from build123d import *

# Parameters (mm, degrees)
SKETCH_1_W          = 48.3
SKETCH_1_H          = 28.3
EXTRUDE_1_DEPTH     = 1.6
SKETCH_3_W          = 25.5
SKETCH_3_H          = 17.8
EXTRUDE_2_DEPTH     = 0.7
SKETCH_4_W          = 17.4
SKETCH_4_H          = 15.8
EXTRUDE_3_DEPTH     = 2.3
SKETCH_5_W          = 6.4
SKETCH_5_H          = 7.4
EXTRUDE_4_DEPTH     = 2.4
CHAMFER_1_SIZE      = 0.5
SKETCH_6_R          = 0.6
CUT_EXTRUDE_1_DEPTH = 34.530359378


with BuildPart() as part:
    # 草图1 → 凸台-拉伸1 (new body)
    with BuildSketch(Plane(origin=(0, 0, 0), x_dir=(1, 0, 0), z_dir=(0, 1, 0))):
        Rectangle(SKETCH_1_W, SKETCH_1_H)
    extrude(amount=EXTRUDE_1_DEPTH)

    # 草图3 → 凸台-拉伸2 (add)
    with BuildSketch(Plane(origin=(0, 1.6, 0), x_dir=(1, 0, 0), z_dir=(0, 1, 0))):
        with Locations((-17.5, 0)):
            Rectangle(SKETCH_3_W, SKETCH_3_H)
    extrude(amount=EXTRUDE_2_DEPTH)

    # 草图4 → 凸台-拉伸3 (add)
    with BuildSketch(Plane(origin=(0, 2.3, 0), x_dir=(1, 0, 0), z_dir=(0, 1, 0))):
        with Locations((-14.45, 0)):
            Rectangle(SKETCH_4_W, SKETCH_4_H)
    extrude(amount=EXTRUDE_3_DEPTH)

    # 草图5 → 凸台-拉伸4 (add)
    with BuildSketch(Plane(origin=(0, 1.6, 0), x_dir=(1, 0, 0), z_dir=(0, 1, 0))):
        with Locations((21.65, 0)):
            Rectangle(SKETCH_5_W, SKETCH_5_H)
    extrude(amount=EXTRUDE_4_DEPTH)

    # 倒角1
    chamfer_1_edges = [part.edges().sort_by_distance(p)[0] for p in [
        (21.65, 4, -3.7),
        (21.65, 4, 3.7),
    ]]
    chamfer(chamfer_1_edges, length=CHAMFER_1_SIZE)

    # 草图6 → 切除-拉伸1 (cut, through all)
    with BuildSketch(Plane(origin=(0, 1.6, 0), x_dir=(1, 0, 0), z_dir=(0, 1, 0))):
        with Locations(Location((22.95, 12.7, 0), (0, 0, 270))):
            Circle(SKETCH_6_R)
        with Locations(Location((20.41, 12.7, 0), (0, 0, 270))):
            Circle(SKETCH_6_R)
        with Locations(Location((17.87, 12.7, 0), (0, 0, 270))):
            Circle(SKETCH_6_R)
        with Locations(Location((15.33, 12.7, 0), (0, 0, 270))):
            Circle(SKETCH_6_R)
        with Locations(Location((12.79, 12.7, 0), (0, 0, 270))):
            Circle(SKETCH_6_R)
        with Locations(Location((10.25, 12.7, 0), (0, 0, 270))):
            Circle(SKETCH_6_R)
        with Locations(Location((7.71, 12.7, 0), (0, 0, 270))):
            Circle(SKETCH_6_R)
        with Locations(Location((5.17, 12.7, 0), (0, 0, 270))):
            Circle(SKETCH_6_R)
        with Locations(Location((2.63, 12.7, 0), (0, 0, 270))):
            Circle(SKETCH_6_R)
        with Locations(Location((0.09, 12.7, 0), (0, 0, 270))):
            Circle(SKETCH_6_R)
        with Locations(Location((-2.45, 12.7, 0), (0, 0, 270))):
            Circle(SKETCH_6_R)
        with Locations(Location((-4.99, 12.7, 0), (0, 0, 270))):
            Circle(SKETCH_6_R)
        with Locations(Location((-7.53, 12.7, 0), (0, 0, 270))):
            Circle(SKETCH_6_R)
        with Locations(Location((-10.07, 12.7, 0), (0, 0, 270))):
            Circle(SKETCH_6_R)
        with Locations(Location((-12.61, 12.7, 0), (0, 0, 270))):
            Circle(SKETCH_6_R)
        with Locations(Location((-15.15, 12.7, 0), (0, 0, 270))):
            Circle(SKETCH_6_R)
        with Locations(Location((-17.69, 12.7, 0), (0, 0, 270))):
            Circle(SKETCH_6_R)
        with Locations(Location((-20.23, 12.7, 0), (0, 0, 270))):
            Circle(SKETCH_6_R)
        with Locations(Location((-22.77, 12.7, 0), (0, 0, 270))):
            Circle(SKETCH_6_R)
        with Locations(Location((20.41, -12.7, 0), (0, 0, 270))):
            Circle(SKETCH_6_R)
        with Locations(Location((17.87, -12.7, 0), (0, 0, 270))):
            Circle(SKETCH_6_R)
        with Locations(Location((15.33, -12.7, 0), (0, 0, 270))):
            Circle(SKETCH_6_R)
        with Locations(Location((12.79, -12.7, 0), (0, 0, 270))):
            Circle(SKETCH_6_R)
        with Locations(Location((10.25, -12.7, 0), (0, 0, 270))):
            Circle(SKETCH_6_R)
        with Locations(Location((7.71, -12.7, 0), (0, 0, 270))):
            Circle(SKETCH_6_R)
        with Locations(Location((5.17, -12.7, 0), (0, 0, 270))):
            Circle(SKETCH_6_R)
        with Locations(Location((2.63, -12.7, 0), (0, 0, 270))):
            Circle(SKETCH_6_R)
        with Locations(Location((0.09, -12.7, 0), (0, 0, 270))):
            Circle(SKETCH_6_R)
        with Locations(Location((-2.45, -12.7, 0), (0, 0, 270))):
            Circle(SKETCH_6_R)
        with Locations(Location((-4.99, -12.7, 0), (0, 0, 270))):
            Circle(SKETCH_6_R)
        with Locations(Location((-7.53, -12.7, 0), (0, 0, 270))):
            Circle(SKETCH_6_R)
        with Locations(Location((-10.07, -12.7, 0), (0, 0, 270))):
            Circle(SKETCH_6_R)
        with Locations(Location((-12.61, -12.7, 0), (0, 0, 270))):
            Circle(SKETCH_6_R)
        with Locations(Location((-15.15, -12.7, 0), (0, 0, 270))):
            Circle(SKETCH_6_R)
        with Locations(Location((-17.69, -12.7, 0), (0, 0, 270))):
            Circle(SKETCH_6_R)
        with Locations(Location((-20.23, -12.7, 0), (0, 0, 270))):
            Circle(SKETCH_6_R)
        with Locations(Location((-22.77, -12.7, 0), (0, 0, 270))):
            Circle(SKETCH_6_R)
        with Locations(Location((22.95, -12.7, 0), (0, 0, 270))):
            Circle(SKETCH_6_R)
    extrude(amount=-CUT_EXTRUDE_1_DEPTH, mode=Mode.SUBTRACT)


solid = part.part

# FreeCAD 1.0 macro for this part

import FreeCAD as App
import Part
import Sketcher

V = App.Vector


def edges_at(feature, points):
    """Names of the edges that pass closest to the given points."""
    edges = feature.Shape.Edges
    near = lambda p: min(range(len(edges)), key=lambda i: edges[i].distToShape(Part.Vertex(*p))[0])
    return sorted({f"Edge{near(p) + 1}" for p in points})

doc = App.newDocument("Part")
body = doc.addObject("PartDesign::Body", "Body")

# Sketch on XZ plane
sketch1 = doc.addObject("Sketcher::SketchObject", "Sketch")
body.addObject(sketch1)
sketch1.AttachmentSupport = (doc.XZ_Plane, [""])
sketch1.MapMode = "FlatFace"
sketch1.addGeometry(Part.LineSegment(V(-24, -14, 0), V(-24, 14, 0)), False)
sketch1.addGeometry(Part.LineSegment(V(-24, 14, 0), V(24, 14, 0)), False)
sketch1.addGeometry(Part.LineSegment(V(24, 14, 0), V(24, -14, 0)), False)
sketch1.addGeometry(Part.LineSegment(V(24, -14, 0), V(-24, -14, 0)), False)
sketch1.addConstraint(Sketcher.Constraint("Coincident", 0, 2, 1, 1))
sketch1.addConstraint(Sketcher.Constraint("Coincident", 1, 2, 2, 1))
sketch1.addConstraint(Sketcher.Constraint("Coincident", 2, 2, 3, 1))
sketch1.addConstraint(Sketcher.Constraint("Coincident", 3, 2, 0, 1))
sketch1.addConstraint(Sketcher.Constraint("Vertical", 0))
sketch1.addConstraint(Sketcher.Constraint("Horizontal", 1))
sketch1.addConstraint(Sketcher.Constraint("Vertical", 2))
sketch1.addConstraint(Sketcher.Constraint("Horizontal", 3))
sketch1.addConstraint(Sketcher.Constraint("Symmetric", 0, 2, 2, 2, -1, 1))
sketch1.addConstraint(Sketcher.Constraint("DistanceX", 1, 1, 1, 2, 48.3))
sketch1.addConstraint(Sketcher.Constraint("DistanceY", 0, 1, 0, 2, 28.3))
pad1 = doc.addObject("PartDesign::Pad", "Pad")
body.addObject(pad1)
pad1.Profile = sketch1
pad1.Length = 1.6
pad1.Reversed = True

# Sketch on XZ plane
sketch2 = doc.addObject("Sketcher::SketchObject", "Sketch001")
body.addObject(sketch2)
sketch2.AttachmentSupport = (doc.XZ_Plane, [""])
sketch2.MapMode = "FlatFace"
sketch2.AttachmentOffset = App.Placement(V(0, 0, -1.6), App.Rotation())
sketch2.addGeometry(Part.LineSegment(V(-30, -9, 0), V(-30, 9, 0)), False)
sketch2.addGeometry(Part.LineSegment(V(-30, 9, 0), V(-5, 9, 0)), False)
sketch2.addGeometry(Part.LineSegment(V(-5, 9, 0), V(-5, -9, 0)), False)
sketch2.addGeometry(Part.LineSegment(V(-5, -9, 0), V(-30, -9, 0)), False)
sketch2.addConstraint(Sketcher.Constraint("Coincident", 0, 2, 1, 1))
sketch2.addConstraint(Sketcher.Constraint("Coincident", 1, 2, 2, 1))
sketch2.addConstraint(Sketcher.Constraint("Coincident", 2, 2, 3, 1))
sketch2.addConstraint(Sketcher.Constraint("Coincident", 3, 2, 0, 1))
sketch2.addConstraint(Sketcher.Constraint("Vertical", 0))
sketch2.addConstraint(Sketcher.Constraint("Horizontal", 1))
sketch2.addConstraint(Sketcher.Constraint("Vertical", 2))
sketch2.addConstraint(Sketcher.Constraint("Horizontal", 3))
sketch2.addConstraint(Sketcher.Constraint("DistanceX", 1, 1, 1, 2, 25.5))
sketch2.addConstraint(Sketcher.Constraint("DistanceY", 0, 1, 0, 2, 17.8))
sketch2.addConstraint(Sketcher.Constraint("DistanceY", -1, 1, 0, 2, 8.9))
sketch2.addConstraint(Sketcher.Constraint("DistanceX", 0, 2, -1, 1, 30.25))
pad2 = doc.addObject("PartDesign::Pad", "Pad001")
body.addObject(pad2)
pad2.Profile = sketch2
pad2.Length = 0.7
pad2.Reversed = True

# Sketch on XZ plane
sketch3 = doc.addObject("Sketcher::SketchObject", "Sketch002")
body.addObject(sketch3)
sketch3.AttachmentSupport = (doc.XZ_Plane, [""])
sketch3.MapMode = "FlatFace"
sketch3.AttachmentOffset = App.Placement(V(0, 0, -2.3), App.Rotation())
sketch3.addGeometry(Part.LineSegment(V(-23, -8, 0), V(-23, 8, 0)), False)
sketch3.addGeometry(Part.LineSegment(V(-23, 8, 0), V(-6, 8, 0)), False)
sketch3.addGeometry(Part.LineSegment(V(-6, 8, 0), V(-6, -8, 0)), False)
sketch3.addGeometry(Part.LineSegment(V(-6, -8, 0), V(-23, -8, 0)), False)
sketch3.addConstraint(Sketcher.Constraint("Coincident", 0, 2, 1, 1))
sketch3.addConstraint(Sketcher.Constraint("Coincident", 1, 2, 2, 1))
sketch3.addConstraint(Sketcher.Constraint("Coincident", 2, 2, 3, 1))
sketch3.addConstraint(Sketcher.Constraint("Coincident", 3, 2, 0, 1))
sketch3.addConstraint(Sketcher.Constraint("Vertical", 0))
sketch3.addConstraint(Sketcher.Constraint("Horizontal", 1))
sketch3.addConstraint(Sketcher.Constraint("Vertical", 2))
sketch3.addConstraint(Sketcher.Constraint("Horizontal", 3))
sketch3.addConstraint(Sketcher.Constraint("DistanceX", 1, 1, 1, 2, 17.4))
sketch3.addConstraint(Sketcher.Constraint("DistanceY", 0, 1, 0, 2, 15.8))
sketch3.addConstraint(Sketcher.Constraint("DistanceY", -1, 1, 0, 2, 7.9))
sketch3.addConstraint(Sketcher.Constraint("DistanceX", 0, 2, -1, 1, 23.15))
pad3 = doc.addObject("PartDesign::Pad", "Pad002")
body.addObject(pad3)
pad3.Profile = sketch3
pad3.Length = 2.3
pad3.Reversed = True

# Sketch on XZ plane
sketch4 = doc.addObject("Sketcher::SketchObject", "Sketch003")
body.addObject(sketch4)
sketch4.AttachmentSupport = (doc.XZ_Plane, [""])
sketch4.MapMode = "FlatFace"
sketch4.AttachmentOffset = App.Placement(V(0, 0, -1.6), App.Rotation())
sketch4.addGeometry(Part.LineSegment(V(18, -4, 0), V(18, 4, 0)), False)
sketch4.addGeometry(Part.LineSegment(V(18, 4, 0), V(25, 4, 0)), False)
sketch4.addGeometry(Part.LineSegment(V(25, 4, 0), V(25, -4, 0)), False)
sketch4.addGeometry(Part.LineSegment(V(25, -4, 0), V(18, -4, 0)), False)
sketch4.addConstraint(Sketcher.Constraint("Coincident", 0, 2, 1, 1))
sketch4.addConstraint(Sketcher.Constraint("Coincident", 1, 2, 2, 1))
sketch4.addConstraint(Sketcher.Constraint("Coincident", 2, 2, 3, 1))
sketch4.addConstraint(Sketcher.Constraint("Coincident", 3, 2, 0, 1))
sketch4.addConstraint(Sketcher.Constraint("Vertical", 0))
sketch4.addConstraint(Sketcher.Constraint("Horizontal", 1))
sketch4.addConstraint(Sketcher.Constraint("Vertical", 2))
sketch4.addConstraint(Sketcher.Constraint("Horizontal", 3))
sketch4.addConstraint(Sketcher.Constraint("DistanceX", 1, 1, 1, 2, 6.4))
sketch4.addConstraint(Sketcher.Constraint("DistanceY", 0, 1, 0, 2, 7.4))
sketch4.addConstraint(Sketcher.Constraint("DistanceY", -1, 1, 0, 2, 3.7))
sketch4.addConstraint(Sketcher.Constraint("DistanceX", -1, 1, 0, 2, 18.45))
pad4 = doc.addObject("PartDesign::Pad", "Pad003")
body.addObject(pad4)
pad4.Profile = sketch4
pad4.Length = 2.4
pad4.Reversed = True
doc.recompute()

chamfer = doc.addObject("PartDesign::Chamfer", "Chamfer")
body.addObject(chamfer)
chamfer.Base = (pad4, edges_at(pad4, [(21.65, 4, -3.7), (21.65, 4, 3.7)]))
chamfer.Size = 0.5

# Sketch on XZ plane
sketch5 = doc.addObject("Sketcher::SketchObject", "Sketch004")
body.addObject(sketch5)
sketch5.AttachmentSupport = (doc.XZ_Plane, [""])
sketch5.MapMode = "FlatFace"
sketch5.AttachmentOffset = App.Placement(V(0, 0, -1.6), App.Rotation())
sketch5.addGeometry(Part.Circle(V(22.9, -12.7, 0), V(0, 0, 1), 0.6), False)
sketch5.addGeometry(Part.Circle(V(20.4, -12.7, 0), V(0, 0, 1), 0.6), False)
sketch5.addGeometry(Part.Circle(V(17.9, -12.7, 0), V(0, 0, 1), 0.6), False)
sketch5.addGeometry(Part.Circle(V(15.3, -12.7, 0), V(0, 0, 1), 0.6), False)
sketch5.addGeometry(Part.Circle(V(12.8, -12.7, 0), V(0, 0, 1), 0.6), False)
sketch5.addGeometry(Part.Circle(V(10.2, -12.7, 0), V(0, 0, 1), 0.6), False)
sketch5.addGeometry(Part.Circle(V(7.7, -12.7, 0), V(0, 0, 1), 0.6), False)
sketch5.addGeometry(Part.Circle(V(5.2, -12.7, 0), V(0, 0, 1), 0.6), False)
sketch5.addGeometry(Part.Circle(V(2.6, -12.7, 0), V(0, 0, 1), 0.6), False)
sketch5.addGeometry(Part.Circle(V(0.1, -12.7, 0), V(0, 0, 1), 0.6), False)
sketch5.addGeometry(Part.Circle(V(-2.5, -12.7, 0), V(0, 0, 1), 0.6), False)
sketch5.addGeometry(Part.Circle(V(-5, -12.7, 0), V(0, 0, 1), 0.6), False)
sketch5.addGeometry(Part.Circle(V(-7.5, -12.7, 0), V(0, 0, 1), 0.6), False)
sketch5.addGeometry(Part.Circle(V(-10.1, -12.7, 0), V(0, 0, 1), 0.6), False)
sketch5.addGeometry(Part.Circle(V(-12.6, -12.7, 0), V(0, 0, 1), 0.6), False)
sketch5.addGeometry(Part.Circle(V(-15.2, -12.7, 0), V(0, 0, 1), 0.6), False)
sketch5.addGeometry(Part.Circle(V(-17.7, -12.7, 0), V(0, 0, 1), 0.6), False)
sketch5.addGeometry(Part.Circle(V(-20.2, -12.7, 0), V(0, 0, 1), 0.6), False)
sketch5.addGeometry(Part.Circle(V(-22.8, -12.7, 0), V(0, 0, 1), 0.6), False)
sketch5.addGeometry(Part.Circle(V(20.4, 12.7, 0), V(0, 0, 1), 0.6), False)
sketch5.addGeometry(Part.Circle(V(17.9, 12.7, 0), V(0, 0, 1), 0.6), False)
sketch5.addGeometry(Part.Circle(V(15.3, 12.7, 0), V(0, 0, 1), 0.6), False)
sketch5.addGeometry(Part.Circle(V(12.8, 12.7, 0), V(0, 0, 1), 0.6), False)
sketch5.addGeometry(Part.Circle(V(10.2, 12.7, 0), V(0, 0, 1), 0.6), False)
sketch5.addGeometry(Part.Circle(V(7.7, 12.7, 0), V(0, 0, 1), 0.6), False)
sketch5.addGeometry(Part.Circle(V(5.2, 12.7, 0), V(0, 0, 1), 0.6), False)
sketch5.addGeometry(Part.Circle(V(2.6, 12.7, 0), V(0, 0, 1), 0.6), False)
sketch5.addGeometry(Part.Circle(V(0.1, 12.7, 0), V(0, 0, 1), 0.6), False)
sketch5.addGeometry(Part.Circle(V(-2.5, 12.7, 0), V(0, 0, 1), 0.6), False)
sketch5.addGeometry(Part.Circle(V(-5, 12.7, 0), V(0, 0, 1), 0.6), False)
sketch5.addGeometry(Part.Circle(V(-7.5, 12.7, 0), V(0, 0, 1), 0.6), False)
sketch5.addGeometry(Part.Circle(V(-10.1, 12.7, 0), V(0, 0, 1), 0.6), False)
sketch5.addGeometry(Part.Circle(V(-12.6, 12.7, 0), V(0, 0, 1), 0.6), False)
sketch5.addGeometry(Part.Circle(V(-15.2, 12.7, 0), V(0, 0, 1), 0.6), False)
sketch5.addGeometry(Part.Circle(V(-17.7, 12.7, 0), V(0, 0, 1), 0.6), False)
sketch5.addGeometry(Part.Circle(V(-20.2, 12.7, 0), V(0, 0, 1), 0.6), False)
sketch5.addGeometry(Part.Circle(V(-22.8, 12.7, 0), V(0, 0, 1), 0.6), False)
sketch5.addGeometry(Part.Circle(V(22.9, 12.7, 0), V(0, 0, 1), 0.6), False)
sketch5.addConstraint(Sketcher.Constraint("Equal", 0, 1))
sketch5.addConstraint(Sketcher.Constraint("Equal", 1, 2))
sketch5.addConstraint(Sketcher.Constraint("Equal", 2, 3))
sketch5.addConstraint(Sketcher.Constraint("Equal", 3, 4))
sketch5.addConstraint(Sketcher.Constraint("Equal", 4, 5))
sketch5.addConstraint(Sketcher.Constraint("Equal", 5, 6))
sketch5.addConstraint(Sketcher.Constraint("Equal", 6, 7))
sketch5.addConstraint(Sketcher.Constraint("Equal", 7, 8))
sketch5.addConstraint(Sketcher.Constraint("Equal", 8, 9))
sketch5.addConstraint(Sketcher.Constraint("Equal", 9, 10))
sketch5.addConstraint(Sketcher.Constraint("Equal", 10, 11))
sketch5.addConstraint(Sketcher.Constraint("Equal", 11, 12))
sketch5.addConstraint(Sketcher.Constraint("Equal", 12, 13))
sketch5.addConstraint(Sketcher.Constraint("Equal", 13, 14))
sketch5.addConstraint(Sketcher.Constraint("Equal", 14, 15))
sketch5.addConstraint(Sketcher.Constraint("Equal", 15, 16))
sketch5.addConstraint(Sketcher.Constraint("Equal", 16, 17))
sketch5.addConstraint(Sketcher.Constraint("Equal", 17, 18))
sketch5.addConstraint(Sketcher.Constraint("Equal", 18, 19))
sketch5.addConstraint(Sketcher.Constraint("Equal", 19, 20))
sketch5.addConstraint(Sketcher.Constraint("Equal", 20, 21))
sketch5.addConstraint(Sketcher.Constraint("Equal", 21, 22))
sketch5.addConstraint(Sketcher.Constraint("Equal", 22, 23))
sketch5.addConstraint(Sketcher.Constraint("Equal", 23, 24))
sketch5.addConstraint(Sketcher.Constraint("Equal", 24, 25))
sketch5.addConstraint(Sketcher.Constraint("Equal", 25, 26))
sketch5.addConstraint(Sketcher.Constraint("Equal", 26, 27))
sketch5.addConstraint(Sketcher.Constraint("Equal", 27, 28))
sketch5.addConstraint(Sketcher.Constraint("Equal", 28, 29))
sketch5.addConstraint(Sketcher.Constraint("Equal", 29, 30))
sketch5.addConstraint(Sketcher.Constraint("Equal", 30, 31))
sketch5.addConstraint(Sketcher.Constraint("Equal", 31, 32))
sketch5.addConstraint(Sketcher.Constraint("Equal", 32, 33))
sketch5.addConstraint(Sketcher.Constraint("Equal", 33, 34))
sketch5.addConstraint(Sketcher.Constraint("Equal", 34, 35))
sketch5.addConstraint(Sketcher.Constraint("Equal", 35, 36))
sketch5.addConstraint(Sketcher.Constraint("Equal", 36, 37))
sketch5.addConstraint(Sketcher.Constraint("Symmetric", 1, 3, 19, 3, -1))
sketch5.addConstraint(Sketcher.Constraint("Symmetric", 2, 3, 20, 3, -1))
sketch5.addConstraint(Sketcher.Constraint("Symmetric", 3, 3, 21, 3, -1))
sketch5.addConstraint(Sketcher.Constraint("Symmetric", 4, 3, 22, 3, -1))
sketch5.addConstraint(Sketcher.Constraint("Symmetric", 5, 3, 23, 3, -1))
sketch5.addConstraint(Sketcher.Constraint("Symmetric", 6, 3, 24, 3, -1))
sketch5.addConstraint(Sketcher.Constraint("Symmetric", 7, 3, 25, 3, -1))
sketch5.addConstraint(Sketcher.Constraint("Symmetric", 8, 3, 26, 3, -1))
sketch5.addConstraint(Sketcher.Constraint("Symmetric", 9, 3, 27, 3, -1))
sketch5.addConstraint(Sketcher.Constraint("Symmetric", 10, 3, 28, 3, -1))
sketch5.addConstraint(Sketcher.Constraint("Symmetric", 11, 3, 29, 3, -1))
sketch5.addConstraint(Sketcher.Constraint("Symmetric", 12, 3, 30, 3, -1))
sketch5.addConstraint(Sketcher.Constraint("Symmetric", 13, 3, 31, 3, -1))
sketch5.addConstraint(Sketcher.Constraint("Symmetric", 14, 3, 32, 3, -1))
sketch5.addConstraint(Sketcher.Constraint("Symmetric", 15, 3, 33, 3, -1))
sketch5.addConstraint(Sketcher.Constraint("Symmetric", 16, 3, 34, 3, -1))
sketch5.addConstraint(Sketcher.Constraint("Symmetric", 17, 3, 35, 3, -1))
sketch5.addConstraint(Sketcher.Constraint("Symmetric", 18, 3, 36, 3, -1))
sketch5.addConstraint(Sketcher.Constraint("Symmetric", 0, 3, 37, 3, -1))
sketch5.addConstraint(Sketcher.Constraint("Horizontal", 0, 3, 1, 3))
sketch5.addConstraint(Sketcher.Constraint("Horizontal", 1, 3, 2, 3))
sketch5.addConstraint(Sketcher.Constraint("Horizontal", 2, 3, 3, 3))
sketch5.addConstraint(Sketcher.Constraint("Horizontal", 3, 3, 4, 3))
sketch5.addConstraint(Sketcher.Constraint("Horizontal", 4, 3, 5, 3))
sketch5.addConstraint(Sketcher.Constraint("Horizontal", 5, 3, 6, 3))
sketch5.addConstraint(Sketcher.Constraint("Horizontal", 6, 3, 7, 3))
sketch5.addConstraint(Sketcher.Constraint("Horizontal", 7, 3, 8, 3))
sketch5.addConstraint(Sketcher.Constraint("Horizontal", 8, 3, 9, 3))
sketch5.addConstraint(Sketcher.Constraint("Horizontal", 9, 3, 10, 3))
sketch5.addConstraint(Sketcher.Constraint("Horizontal", 10, 3, 11, 3))
sketch5.addConstraint(Sketcher.Constraint("Horizontal", 11, 3, 12, 3))
sketch5.addConstraint(Sketcher.Constraint("Horizontal", 12, 3, 13, 3))
sketch5.addConstraint(Sketcher.Constraint("Horizontal", 13, 3, 14, 3))
sketch5.addConstraint(Sketcher.Constraint("Horizontal", 14, 3, 15, 3))
sketch5.addConstraint(Sketcher.Constraint("Horizontal", 15, 3, 16, 3))
sketch5.addConstraint(Sketcher.Constraint("Horizontal", 16, 3, 17, 3))
sketch5.addConstraint(Sketcher.Constraint("Horizontal", 17, 3, 18, 3))
sketch5.addConstraint(Sketcher.Constraint("Diameter", 0, 1.2))
sketch5.addConstraint(Sketcher.Constraint("DistanceY", 0, 3, -1, 1, 12.7))
sketch5.addConstraint(Sketcher.Constraint("DistanceX", 5, 3, 0, 3, 12.7))
sketch5.addConstraint(Sketcher.Constraint("DistanceX", 6, 3, 1, 3, 12.7))
sketch5.addConstraint(Sketcher.Constraint("DistanceX", 7, 3, 2, 3, 12.7))
sketch5.addConstraint(Sketcher.Constraint("DistanceX", 8, 3, 3, 3, 12.7))
sketch5.addConstraint(Sketcher.Constraint("DistanceX", 9, 3, 4, 3, 12.7))
sketch5.addConstraint(Sketcher.Constraint("DistanceX", 10, 3, 5, 3, 12.7))
sketch5.addConstraint(Sketcher.Constraint("DistanceX", 11, 3, 6, 3, 12.7))
sketch5.addConstraint(Sketcher.Constraint("DistanceX", 12, 3, 7, 3, 12.7))
sketch5.addConstraint(Sketcher.Constraint("DistanceX", 13, 3, 8, 3, 12.7))
sketch5.addConstraint(Sketcher.Constraint("DistanceX", 14, 3, 9, 3, 12.7))
sketch5.addConstraint(Sketcher.Constraint("DistanceX", 15, 3, 10, 3, 12.7))
sketch5.addConstraint(Sketcher.Constraint("DistanceX", 16, 3, 11, 3, 12.7))
sketch5.addConstraint(Sketcher.Constraint("DistanceX", 17, 3, 12, 3, 12.7))
sketch5.addConstraint(Sketcher.Constraint("DistanceX", 18, 3, 13, 3, 12.7))
sketch5.addConstraint(Sketcher.Constraint("DistanceX", -1, 1, 0, 3, 22.95))
sketch5.addConstraint(Sketcher.Constraint("DistanceX", -1, 1, 1, 3, 20.41))
sketch5.addConstraint(Sketcher.Constraint("DistanceX", -1, 1, 2, 3, 17.87))
sketch5.addConstraint(Sketcher.Constraint("DistanceX", -1, 1, 3, 3, 15.33))
sketch5.addConstraint(Sketcher.Constraint("DistanceX", -1, 1, 4, 3, 12.79))
pocket1 = doc.addObject("PartDesign::Pocket", "Pocket")
body.addObject(pocket1)
pocket1.Profile = sketch5
pocket1.Type = "ThroughAll"
pocket1.Reversed = True

doc.recompute()
